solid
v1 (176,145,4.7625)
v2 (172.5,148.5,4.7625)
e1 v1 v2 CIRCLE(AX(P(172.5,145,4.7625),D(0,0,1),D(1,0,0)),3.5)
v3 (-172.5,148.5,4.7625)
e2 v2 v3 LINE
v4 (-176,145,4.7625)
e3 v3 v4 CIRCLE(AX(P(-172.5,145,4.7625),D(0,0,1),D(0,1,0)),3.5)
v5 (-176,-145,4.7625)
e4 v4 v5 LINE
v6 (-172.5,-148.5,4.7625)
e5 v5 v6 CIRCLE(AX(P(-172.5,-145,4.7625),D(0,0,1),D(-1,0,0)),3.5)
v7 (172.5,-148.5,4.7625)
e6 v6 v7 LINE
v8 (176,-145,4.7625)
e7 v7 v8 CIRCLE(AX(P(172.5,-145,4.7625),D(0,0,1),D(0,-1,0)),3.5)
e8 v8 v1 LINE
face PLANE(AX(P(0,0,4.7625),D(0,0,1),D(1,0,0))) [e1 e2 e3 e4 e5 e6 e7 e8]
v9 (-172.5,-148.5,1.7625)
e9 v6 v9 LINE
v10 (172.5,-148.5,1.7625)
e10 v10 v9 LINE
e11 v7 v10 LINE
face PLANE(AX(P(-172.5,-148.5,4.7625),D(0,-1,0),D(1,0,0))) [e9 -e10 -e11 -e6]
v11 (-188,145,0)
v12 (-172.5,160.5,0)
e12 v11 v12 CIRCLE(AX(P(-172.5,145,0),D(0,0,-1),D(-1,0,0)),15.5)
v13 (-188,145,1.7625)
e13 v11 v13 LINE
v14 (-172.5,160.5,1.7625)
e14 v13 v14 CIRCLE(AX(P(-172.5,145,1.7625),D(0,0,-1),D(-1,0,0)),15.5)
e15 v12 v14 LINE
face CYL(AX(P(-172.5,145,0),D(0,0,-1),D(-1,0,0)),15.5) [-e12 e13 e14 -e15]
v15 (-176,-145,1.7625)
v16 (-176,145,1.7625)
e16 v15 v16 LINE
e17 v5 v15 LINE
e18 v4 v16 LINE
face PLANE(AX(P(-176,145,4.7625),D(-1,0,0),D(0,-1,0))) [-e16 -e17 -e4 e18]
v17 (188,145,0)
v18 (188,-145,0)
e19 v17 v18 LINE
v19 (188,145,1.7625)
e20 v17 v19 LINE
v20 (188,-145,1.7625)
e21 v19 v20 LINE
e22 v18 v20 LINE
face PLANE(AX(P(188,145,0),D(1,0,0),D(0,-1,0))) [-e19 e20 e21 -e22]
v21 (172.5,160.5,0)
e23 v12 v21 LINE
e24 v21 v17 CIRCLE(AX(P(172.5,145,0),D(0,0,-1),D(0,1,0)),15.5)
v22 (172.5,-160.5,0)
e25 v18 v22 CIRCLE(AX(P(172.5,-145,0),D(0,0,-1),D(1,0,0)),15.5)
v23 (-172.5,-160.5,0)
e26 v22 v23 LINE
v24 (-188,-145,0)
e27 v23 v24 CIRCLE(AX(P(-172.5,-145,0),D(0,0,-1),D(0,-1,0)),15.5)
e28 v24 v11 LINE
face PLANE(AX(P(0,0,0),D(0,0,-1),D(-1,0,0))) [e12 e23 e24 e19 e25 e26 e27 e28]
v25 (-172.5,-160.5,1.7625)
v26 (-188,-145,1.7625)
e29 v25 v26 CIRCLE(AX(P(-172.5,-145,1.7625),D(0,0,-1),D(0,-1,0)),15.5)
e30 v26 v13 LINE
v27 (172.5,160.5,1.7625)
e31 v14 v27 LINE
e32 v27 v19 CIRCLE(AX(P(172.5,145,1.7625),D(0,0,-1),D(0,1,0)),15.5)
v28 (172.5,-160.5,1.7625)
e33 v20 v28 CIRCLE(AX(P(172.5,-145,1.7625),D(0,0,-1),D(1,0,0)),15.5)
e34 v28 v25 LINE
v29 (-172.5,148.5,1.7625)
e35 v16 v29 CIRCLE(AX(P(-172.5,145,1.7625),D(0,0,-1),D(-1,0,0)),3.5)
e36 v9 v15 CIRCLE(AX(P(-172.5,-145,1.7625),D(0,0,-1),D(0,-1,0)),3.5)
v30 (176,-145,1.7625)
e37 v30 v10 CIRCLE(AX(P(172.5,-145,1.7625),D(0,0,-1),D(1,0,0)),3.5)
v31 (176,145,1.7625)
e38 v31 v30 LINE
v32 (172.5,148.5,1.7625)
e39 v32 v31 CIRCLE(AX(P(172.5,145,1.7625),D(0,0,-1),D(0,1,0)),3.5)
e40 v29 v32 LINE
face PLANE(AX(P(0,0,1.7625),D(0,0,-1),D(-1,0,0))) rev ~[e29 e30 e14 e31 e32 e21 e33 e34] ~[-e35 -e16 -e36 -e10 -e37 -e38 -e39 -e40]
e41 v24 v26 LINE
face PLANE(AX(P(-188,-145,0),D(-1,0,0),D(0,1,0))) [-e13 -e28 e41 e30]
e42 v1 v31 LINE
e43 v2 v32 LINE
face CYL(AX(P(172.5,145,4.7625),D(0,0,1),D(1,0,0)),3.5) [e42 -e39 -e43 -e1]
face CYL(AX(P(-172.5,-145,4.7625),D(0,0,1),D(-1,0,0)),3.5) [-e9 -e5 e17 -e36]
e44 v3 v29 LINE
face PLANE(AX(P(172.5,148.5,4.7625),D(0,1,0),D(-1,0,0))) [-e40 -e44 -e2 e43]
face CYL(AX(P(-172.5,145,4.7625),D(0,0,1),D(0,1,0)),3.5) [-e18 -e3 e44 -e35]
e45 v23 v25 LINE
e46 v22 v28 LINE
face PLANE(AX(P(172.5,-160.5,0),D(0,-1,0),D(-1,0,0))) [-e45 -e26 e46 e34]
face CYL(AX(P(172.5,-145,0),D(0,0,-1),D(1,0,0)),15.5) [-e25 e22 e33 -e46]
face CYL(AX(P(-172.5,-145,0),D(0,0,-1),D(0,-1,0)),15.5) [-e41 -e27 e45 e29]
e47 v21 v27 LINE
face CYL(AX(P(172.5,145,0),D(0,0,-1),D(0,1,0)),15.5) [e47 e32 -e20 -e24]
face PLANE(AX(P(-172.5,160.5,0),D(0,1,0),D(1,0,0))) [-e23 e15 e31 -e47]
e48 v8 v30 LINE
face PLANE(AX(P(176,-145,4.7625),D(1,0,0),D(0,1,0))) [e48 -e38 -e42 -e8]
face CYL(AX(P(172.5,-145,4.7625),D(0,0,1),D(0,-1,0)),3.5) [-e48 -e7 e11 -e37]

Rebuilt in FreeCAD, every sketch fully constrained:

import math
import FreeCAD as App
import Part
import Sketcher


def edges_at(feature, points):
    """Names of the edges that pass closest to the given points."""
    edges = feature.Shape.Edges
    near = lambda p: min(range(len(edges)), key=lambda i: edges[i].distToShape(Part.Vertex(*p))[0])
    return sorted({f"Edge{near(p) + 1}" for p in points})


def add_polygon(sketch, points):
    """Adds a closed chain of lines whose ends are joined by coincident constraints."""
    first, n = sketch.GeometryCount, len(points)
    for a, b in zip(points, points[1:] + points[:1]):
        sketch.addGeometry(Part.LineSegment(App.Vector(*a, 0), App.Vector(*b, 0)), False)
    for i in range(n):
        sketch.addConstraint(Sketcher.Constraint("Coincident", first + i, 2, first + (i + 1) % n, 1))

doc = App.newDocument("Part")
body = doc.addObject("PartDesign::Body", "Body")

# Sketch on XY plane
sketch1 = body.newObject("Sketcher::SketchObject", "Sketch")
sketch1.AttachmentSupport = (doc.getObject("XY_Plane"), [""])
sketch1.MapMode = "FlatFace"
add_polygon(sketch1, [(-176.5, -149), (176.5, -149), (176.5, 149), (-176.5, 149)])  # lines 0-3
sketch1.addConstraint([
    Sketcher.Constraint("Horizontal", 0),
    Sketcher.Constraint("Vertical", 1),
    Sketcher.Constraint("Horizontal", 2),
    Sketcher.Constraint("Vertical", 3),
    Sketcher.Constraint("Symmetric", 0, 2, 2, 2, -1, 1),
    Sketcher.Constraint("DistanceX", 0, 1, 0, 2, 353.0),
    Sketcher.Constraint("DistanceY", 1, 1, 1, 2, 298.0),
])
pad1 = body.newObject("PartDesign::Pad", "Pad")
pad1.Profile = sketch1
pad1.Length = 4.7625
doc.recompute()

fillet = body.newObject("PartDesign::Fillet", "Fillet")
fillet.Base = (pad1, edges_at(pad1, [
    (-176.5, -149, 2.381),
    (176.5, -149, 2.381),
    (176.5, 149, 2.381),
    (-176.5, 149, 2.381),
]))
fillet.Radius = 4

# Sketch on XY plane
sketch2 = body.newObject("Sketcher::SketchObject", "Sketch001")
sketch2.AttachmentSupport = (doc.getObject("XY_Plane"), [""])
sketch2.MapMode = "FlatFace"
sketch2.AttachmentOffset = App.Placement(App.Vector(0, 0, 4.7625), App.Rotation())
sketch2.addGeometry([
    Part.LineSegment(App.Vector(172.5, 149, 0), App.Vector(-172.5, 149, 0)),  # 0
    Part.ArcOfCircle(Part.Circle(App.Vector(-172.5, 145, 0), App.Vector(0, 0, 1), 4), math.radians(90), math.radians(180)),  # 1
    Part.LineSegment(App.Vector(-176.5, 145, 0), App.Vector(-176.5, -145, 0)),  # 2
    Part.ArcOfCircle(Part.Circle(App.Vector(-172.5, -145, 0), App.Vector(0, 0, 1), 4), math.radians(180), math.radians(270)),  # 3
    Part.LineSegment(App.Vector(-172.5, -149, 0), App.Vector(172.5, -149, 0)),  # 4
    Part.ArcOfCircle(Part.Circle(App.Vector(172.5, -145, 0), App.Vector(0, 0, 1), 4), math.radians(-90), math.radians(0)),  # 5
    Part.LineSegment(App.Vector(176.5, -145, 0), App.Vector(176.5, 145, 0)),  # 6
    Part.ArcOfCircle(Part.Circle(App.Vector(172.5, 145, 0), App.Vector(0, 0, 1), 4), math.radians(0), math.radians(90)),  # 7
    Part.ArcOfCircle(Part.Circle(App.Vector(-172.5, 145, 0), App.Vector(0, 0, 1), 3.5), math.radians(90), math.radians(180)),  # 8
    Part.LineSegment(App.Vector(-172.5, 148.5, 0), App.Vector(172.5, 148.5, 0)),  # 9
    Part.ArcOfCircle(Part.Circle(App.Vector(172.5, 145, 0), App.Vector(0, 0, 1), 3.5), math.radians(0), math.radians(90)),  # 10
    Part.LineSegment(App.Vector(176, 145, 0), App.Vector(176, -145, 0)),  # 11
    Part.ArcOfCircle(Part.Circle(App.Vector(172.5, -145, 0), App.Vector(0, 0, 1), 3.5), math.radians(-90), math.radians(0)),  # 12
    Part.LineSegment(App.Vector(172.5, -148.5, 0), App.Vector(-172.5, -148.5, 0)),  # 13
    Part.ArcOfCircle(Part.Circle(App.Vector(-172.5, -145, 0), App.Vector(0, 0, 1), 3.5), math.radians(180), math.radians(270)),  # 14
    Part.LineSegment(App.Vector(-176, -145, 0), App.Vector(-176, 145, 0)),  # 15
], False)
sketch2.addConstraint([
    Sketcher.Constraint("Tangent", 0, 2, 1, 1),
    Sketcher.Constraint("Tangent", 1, 2, 2, 1),
    Sketcher.Constraint("Tangent", 2, 2, 3, 1),
    Sketcher.Constraint("Tangent", 3, 2, 4, 1),
    Sketcher.Constraint("Tangent", 4, 2, 5, 1),
    Sketcher.Constraint("Tangent", 5, 2, 6, 1),
    Sketcher.Constraint("Tangent", 6, 2, 7, 1),
    Sketcher.Constraint("Tangent", 7, 2, 0, 1),
    Sketcher.Constraint("Tangent", 8, 1, 9, 1),
    Sketcher.Constraint("Tangent", 9, 2, 10, 2),
    Sketcher.Constraint("Tangent", 10, 1, 11, 1),
    Sketcher.Constraint("Tangent", 11, 2, 12, 2),
    Sketcher.Constraint("Tangent", 12, 1, 13, 1),
    Sketcher.Constraint("Tangent", 13, 2, 14, 2),
    Sketcher.Constraint("Tangent", 14, 1, 15, 1),
    Sketcher.Constraint("Tangent", 15, 2, 8, 2),
    Sketcher.Constraint("Horizontal", 0),
    Sketcher.Constraint("Vertical", 2),
    Sketcher.Constraint("Horizontal", 4),
    Sketcher.Constraint("Vertical", 6),
    Sketcher.Constraint("Horizontal", 9),
    Sketcher.Constraint("Vertical", 11),
    Sketcher.Constraint("Horizontal", 13),
    Sketcher.Constraint("Vertical", 15),
    Sketcher.Constraint("Coincident", 8, 3, 1, 3),
    Sketcher.Constraint("Coincident", 10, 3, 7, 3),
    Sketcher.Constraint("Coincident", 12, 3, 5, 3),
    Sketcher.Constraint("Equal", 1, 3),
    Sketcher.Constraint("Equal", 3, 5),
    Sketcher.Constraint("Equal", 5, 7),
    Sketcher.Constraint("Equal", 12, 14),
    Sketcher.Constraint("Symmetric", 1, 3, 5, 3, -1, 1),
    Sketcher.Constraint("Radius", 1, 4.0),
    Sketcher.Constraint("Radius", 8, 3.5),
    Sketcher.Constraint("DistanceX", 0, 2, 0, 1, 345.0),
    Sketcher.Constraint("DistanceY", 2, 2, 2, 1, 290.0),
])
pocket1 = body.newObject("PartDesign::Pocket", "Pocket")
pocket1.Profile = sketch2
pocket1.Type = "ThroughAll"

# Sketch on XY plane
sketch3 = body.newObject("Sketcher::SketchObject", "Sketch002")
sketch3.AttachmentSupport = (doc.getObject("XY_Plane"), [""])
sketch3.MapMode = "FlatFace"
sketch3.addGeometry([
    Part.LineSegment(App.Vector(-172.5, 160.5, 0), App.Vector(172.5, 160.5, 0)),  # 0
    Part.ArcOfCircle(Part.Circle(App.Vector(172.5, 145, 0), App.Vector(0, 0, 1), 15.5), math.radians(0), math.radians(90)),  # 1
    Part.LineSegment(App.Vector(188, 145, 0), App.Vector(188, -145, 0)),  # 2
    Part.ArcOfCircle(Part.Circle(App.Vector(172.5, -145, 0), App.Vector(0, 0, 1), 15.5), math.radians(-90), math.radians(0)),  # 3
    Part.LineSegment(App.Vector(172.5, -160.5, 0), App.Vector(-172.5, -160.5, 0)),  # 4
    Part.ArcOfCircle(Part.Circle(App.Vector(-172.5, -145, 0), App.Vector(0, 0, 1), 15.5), math.radians(180), math.radians(270)),  # 5
    Part.LineSegment(App.Vector(-188, -145, 0), App.Vector(-188, 145, 0)),  # 6
    Part.ArcOfCircle(Part.Circle(App.Vector(-172.5, 145, 0), App.Vector(0, 0, 1), 15.5), math.radians(90), math.radians(180)),  # 7
    Part.ArcOfCircle(Part.Circle(App.Vector(172.5, 145, 0), App.Vector(0, 0, 1), 3.5), math.radians(0), math.radians(90)),  # 8
    Part.LineSegment(App.Vector(172.5, 148.5, 0), App.Vector(-172.5, 148.5, 0)),  # 9
    Part.ArcOfCircle(Part.Circle(App.Vector(-172.5, 145, 0), App.Vector(0, 0, 1), 3.5), math.radians(90), math.radians(180)),  # 10
    Part.LineSegment(App.Vector(-176, 145, 0), App.Vector(-176, -145, 0)),  # 11
    Part.ArcOfCircle(Part.Circle(App.Vector(-172.5, -145, 0), App.Vector(0, 0, 1), 3.5), math.radians(180), math.radians(270)),  # 12
    Part.LineSegment(App.Vector(-172.5, -148.5, 0), App.Vector(172.5, -148.5, 0)),  # 13
    Part.ArcOfCircle(Part.Circle(App.Vector(172.5, -145, 0), App.Vector(0, 0, 1), 3.5), math.radians(-90), math.radians(0)),  # 14
    Part.LineSegment(App.Vector(176, -145, 0), App.Vector(176, 145, 0)),  # 15
], False)
sketch3.addConstraint([
    Sketcher.Constraint("Tangent", 0, 2, 1, 2),
    Sketcher.Constraint("Tangent", 1, 1, 2, 1),
    Sketcher.Constraint("Tangent", 2, 2, 3, 2),
    Sketcher.Constraint("Tangent", 3, 1, 4, 1),
    Sketcher.Constraint("Tangent", 4, 2, 5, 2),
    Sketcher.Constraint("Tangent", 5, 1, 6, 1),
    Sketcher.Constraint("Tangent", 6, 2, 7, 2),
    Sketcher.Constraint("Tangent", 7, 1, 0, 1),
    Sketcher.Constraint("Tangent", 8, 2, 9, 1),
    Sketcher.Constraint("Tangent", 9, 2, 10, 1),
    Sketcher.Constraint("Tangent", 10, 2, 11, 1),
    Sketcher.Constraint("Tangent", 11, 2, 12, 1),
    Sketcher.Constraint("Tangent", 12, 2, 13, 1),
    Sketcher.Constraint("Tangent", 13, 2, 14, 1),
    Sketcher.Constraint("Tangent", 14, 2, 15, 1),
    Sketcher.Constraint("Tangent", 15, 2, 8, 1),
    Sketcher.Constraint("Horizontal", 0),
    Sketcher.Constraint("Vertical", 2),
    Sketcher.Constraint("Horizontal", 4),
    Sketcher.Constraint("Vertical", 6),
    Sketcher.Constraint("Horizontal", 9),
    Sketcher.Constraint("Vertical", 11),
    Sketcher.Constraint("Horizontal", 13),
    Sketcher.Constraint("Vertical", 15),
    Sketcher.Constraint("Coincident", 8, 3, 1, 3),
    Sketcher.Constraint("Coincident", 10, 3, 7, 3),
    Sketcher.Constraint("Coincident", 12, 3, 5, 3),
    Sketcher.Constraint("Equal", 1, 3),
    Sketcher.Constraint("Equal", 3, 5),
    Sketcher.Constraint("Equal", 5, 7),
    Sketcher.Constraint("Equal", 12, 14),
    Sketcher.Constraint("Symmetric", 1, 3, 5, 3, -1, 1),
    Sketcher.Constraint("DistanceY", 8, 2, 0, 2, 12.0),
    Sketcher.Constraint("Radius", 1, 15.5),
    Sketcher.Constraint("DistanceX", 0, 1, 0, 2, 345.0),
    Sketcher.Constraint("DistanceY", 2, 2, 2, 1, 290.0),
])
pad2 = body.newObject("PartDesign::Pad", "Pad001")
pad2.Profile = sketch3
pad2.Length = 1.7625

doc.recompute()
